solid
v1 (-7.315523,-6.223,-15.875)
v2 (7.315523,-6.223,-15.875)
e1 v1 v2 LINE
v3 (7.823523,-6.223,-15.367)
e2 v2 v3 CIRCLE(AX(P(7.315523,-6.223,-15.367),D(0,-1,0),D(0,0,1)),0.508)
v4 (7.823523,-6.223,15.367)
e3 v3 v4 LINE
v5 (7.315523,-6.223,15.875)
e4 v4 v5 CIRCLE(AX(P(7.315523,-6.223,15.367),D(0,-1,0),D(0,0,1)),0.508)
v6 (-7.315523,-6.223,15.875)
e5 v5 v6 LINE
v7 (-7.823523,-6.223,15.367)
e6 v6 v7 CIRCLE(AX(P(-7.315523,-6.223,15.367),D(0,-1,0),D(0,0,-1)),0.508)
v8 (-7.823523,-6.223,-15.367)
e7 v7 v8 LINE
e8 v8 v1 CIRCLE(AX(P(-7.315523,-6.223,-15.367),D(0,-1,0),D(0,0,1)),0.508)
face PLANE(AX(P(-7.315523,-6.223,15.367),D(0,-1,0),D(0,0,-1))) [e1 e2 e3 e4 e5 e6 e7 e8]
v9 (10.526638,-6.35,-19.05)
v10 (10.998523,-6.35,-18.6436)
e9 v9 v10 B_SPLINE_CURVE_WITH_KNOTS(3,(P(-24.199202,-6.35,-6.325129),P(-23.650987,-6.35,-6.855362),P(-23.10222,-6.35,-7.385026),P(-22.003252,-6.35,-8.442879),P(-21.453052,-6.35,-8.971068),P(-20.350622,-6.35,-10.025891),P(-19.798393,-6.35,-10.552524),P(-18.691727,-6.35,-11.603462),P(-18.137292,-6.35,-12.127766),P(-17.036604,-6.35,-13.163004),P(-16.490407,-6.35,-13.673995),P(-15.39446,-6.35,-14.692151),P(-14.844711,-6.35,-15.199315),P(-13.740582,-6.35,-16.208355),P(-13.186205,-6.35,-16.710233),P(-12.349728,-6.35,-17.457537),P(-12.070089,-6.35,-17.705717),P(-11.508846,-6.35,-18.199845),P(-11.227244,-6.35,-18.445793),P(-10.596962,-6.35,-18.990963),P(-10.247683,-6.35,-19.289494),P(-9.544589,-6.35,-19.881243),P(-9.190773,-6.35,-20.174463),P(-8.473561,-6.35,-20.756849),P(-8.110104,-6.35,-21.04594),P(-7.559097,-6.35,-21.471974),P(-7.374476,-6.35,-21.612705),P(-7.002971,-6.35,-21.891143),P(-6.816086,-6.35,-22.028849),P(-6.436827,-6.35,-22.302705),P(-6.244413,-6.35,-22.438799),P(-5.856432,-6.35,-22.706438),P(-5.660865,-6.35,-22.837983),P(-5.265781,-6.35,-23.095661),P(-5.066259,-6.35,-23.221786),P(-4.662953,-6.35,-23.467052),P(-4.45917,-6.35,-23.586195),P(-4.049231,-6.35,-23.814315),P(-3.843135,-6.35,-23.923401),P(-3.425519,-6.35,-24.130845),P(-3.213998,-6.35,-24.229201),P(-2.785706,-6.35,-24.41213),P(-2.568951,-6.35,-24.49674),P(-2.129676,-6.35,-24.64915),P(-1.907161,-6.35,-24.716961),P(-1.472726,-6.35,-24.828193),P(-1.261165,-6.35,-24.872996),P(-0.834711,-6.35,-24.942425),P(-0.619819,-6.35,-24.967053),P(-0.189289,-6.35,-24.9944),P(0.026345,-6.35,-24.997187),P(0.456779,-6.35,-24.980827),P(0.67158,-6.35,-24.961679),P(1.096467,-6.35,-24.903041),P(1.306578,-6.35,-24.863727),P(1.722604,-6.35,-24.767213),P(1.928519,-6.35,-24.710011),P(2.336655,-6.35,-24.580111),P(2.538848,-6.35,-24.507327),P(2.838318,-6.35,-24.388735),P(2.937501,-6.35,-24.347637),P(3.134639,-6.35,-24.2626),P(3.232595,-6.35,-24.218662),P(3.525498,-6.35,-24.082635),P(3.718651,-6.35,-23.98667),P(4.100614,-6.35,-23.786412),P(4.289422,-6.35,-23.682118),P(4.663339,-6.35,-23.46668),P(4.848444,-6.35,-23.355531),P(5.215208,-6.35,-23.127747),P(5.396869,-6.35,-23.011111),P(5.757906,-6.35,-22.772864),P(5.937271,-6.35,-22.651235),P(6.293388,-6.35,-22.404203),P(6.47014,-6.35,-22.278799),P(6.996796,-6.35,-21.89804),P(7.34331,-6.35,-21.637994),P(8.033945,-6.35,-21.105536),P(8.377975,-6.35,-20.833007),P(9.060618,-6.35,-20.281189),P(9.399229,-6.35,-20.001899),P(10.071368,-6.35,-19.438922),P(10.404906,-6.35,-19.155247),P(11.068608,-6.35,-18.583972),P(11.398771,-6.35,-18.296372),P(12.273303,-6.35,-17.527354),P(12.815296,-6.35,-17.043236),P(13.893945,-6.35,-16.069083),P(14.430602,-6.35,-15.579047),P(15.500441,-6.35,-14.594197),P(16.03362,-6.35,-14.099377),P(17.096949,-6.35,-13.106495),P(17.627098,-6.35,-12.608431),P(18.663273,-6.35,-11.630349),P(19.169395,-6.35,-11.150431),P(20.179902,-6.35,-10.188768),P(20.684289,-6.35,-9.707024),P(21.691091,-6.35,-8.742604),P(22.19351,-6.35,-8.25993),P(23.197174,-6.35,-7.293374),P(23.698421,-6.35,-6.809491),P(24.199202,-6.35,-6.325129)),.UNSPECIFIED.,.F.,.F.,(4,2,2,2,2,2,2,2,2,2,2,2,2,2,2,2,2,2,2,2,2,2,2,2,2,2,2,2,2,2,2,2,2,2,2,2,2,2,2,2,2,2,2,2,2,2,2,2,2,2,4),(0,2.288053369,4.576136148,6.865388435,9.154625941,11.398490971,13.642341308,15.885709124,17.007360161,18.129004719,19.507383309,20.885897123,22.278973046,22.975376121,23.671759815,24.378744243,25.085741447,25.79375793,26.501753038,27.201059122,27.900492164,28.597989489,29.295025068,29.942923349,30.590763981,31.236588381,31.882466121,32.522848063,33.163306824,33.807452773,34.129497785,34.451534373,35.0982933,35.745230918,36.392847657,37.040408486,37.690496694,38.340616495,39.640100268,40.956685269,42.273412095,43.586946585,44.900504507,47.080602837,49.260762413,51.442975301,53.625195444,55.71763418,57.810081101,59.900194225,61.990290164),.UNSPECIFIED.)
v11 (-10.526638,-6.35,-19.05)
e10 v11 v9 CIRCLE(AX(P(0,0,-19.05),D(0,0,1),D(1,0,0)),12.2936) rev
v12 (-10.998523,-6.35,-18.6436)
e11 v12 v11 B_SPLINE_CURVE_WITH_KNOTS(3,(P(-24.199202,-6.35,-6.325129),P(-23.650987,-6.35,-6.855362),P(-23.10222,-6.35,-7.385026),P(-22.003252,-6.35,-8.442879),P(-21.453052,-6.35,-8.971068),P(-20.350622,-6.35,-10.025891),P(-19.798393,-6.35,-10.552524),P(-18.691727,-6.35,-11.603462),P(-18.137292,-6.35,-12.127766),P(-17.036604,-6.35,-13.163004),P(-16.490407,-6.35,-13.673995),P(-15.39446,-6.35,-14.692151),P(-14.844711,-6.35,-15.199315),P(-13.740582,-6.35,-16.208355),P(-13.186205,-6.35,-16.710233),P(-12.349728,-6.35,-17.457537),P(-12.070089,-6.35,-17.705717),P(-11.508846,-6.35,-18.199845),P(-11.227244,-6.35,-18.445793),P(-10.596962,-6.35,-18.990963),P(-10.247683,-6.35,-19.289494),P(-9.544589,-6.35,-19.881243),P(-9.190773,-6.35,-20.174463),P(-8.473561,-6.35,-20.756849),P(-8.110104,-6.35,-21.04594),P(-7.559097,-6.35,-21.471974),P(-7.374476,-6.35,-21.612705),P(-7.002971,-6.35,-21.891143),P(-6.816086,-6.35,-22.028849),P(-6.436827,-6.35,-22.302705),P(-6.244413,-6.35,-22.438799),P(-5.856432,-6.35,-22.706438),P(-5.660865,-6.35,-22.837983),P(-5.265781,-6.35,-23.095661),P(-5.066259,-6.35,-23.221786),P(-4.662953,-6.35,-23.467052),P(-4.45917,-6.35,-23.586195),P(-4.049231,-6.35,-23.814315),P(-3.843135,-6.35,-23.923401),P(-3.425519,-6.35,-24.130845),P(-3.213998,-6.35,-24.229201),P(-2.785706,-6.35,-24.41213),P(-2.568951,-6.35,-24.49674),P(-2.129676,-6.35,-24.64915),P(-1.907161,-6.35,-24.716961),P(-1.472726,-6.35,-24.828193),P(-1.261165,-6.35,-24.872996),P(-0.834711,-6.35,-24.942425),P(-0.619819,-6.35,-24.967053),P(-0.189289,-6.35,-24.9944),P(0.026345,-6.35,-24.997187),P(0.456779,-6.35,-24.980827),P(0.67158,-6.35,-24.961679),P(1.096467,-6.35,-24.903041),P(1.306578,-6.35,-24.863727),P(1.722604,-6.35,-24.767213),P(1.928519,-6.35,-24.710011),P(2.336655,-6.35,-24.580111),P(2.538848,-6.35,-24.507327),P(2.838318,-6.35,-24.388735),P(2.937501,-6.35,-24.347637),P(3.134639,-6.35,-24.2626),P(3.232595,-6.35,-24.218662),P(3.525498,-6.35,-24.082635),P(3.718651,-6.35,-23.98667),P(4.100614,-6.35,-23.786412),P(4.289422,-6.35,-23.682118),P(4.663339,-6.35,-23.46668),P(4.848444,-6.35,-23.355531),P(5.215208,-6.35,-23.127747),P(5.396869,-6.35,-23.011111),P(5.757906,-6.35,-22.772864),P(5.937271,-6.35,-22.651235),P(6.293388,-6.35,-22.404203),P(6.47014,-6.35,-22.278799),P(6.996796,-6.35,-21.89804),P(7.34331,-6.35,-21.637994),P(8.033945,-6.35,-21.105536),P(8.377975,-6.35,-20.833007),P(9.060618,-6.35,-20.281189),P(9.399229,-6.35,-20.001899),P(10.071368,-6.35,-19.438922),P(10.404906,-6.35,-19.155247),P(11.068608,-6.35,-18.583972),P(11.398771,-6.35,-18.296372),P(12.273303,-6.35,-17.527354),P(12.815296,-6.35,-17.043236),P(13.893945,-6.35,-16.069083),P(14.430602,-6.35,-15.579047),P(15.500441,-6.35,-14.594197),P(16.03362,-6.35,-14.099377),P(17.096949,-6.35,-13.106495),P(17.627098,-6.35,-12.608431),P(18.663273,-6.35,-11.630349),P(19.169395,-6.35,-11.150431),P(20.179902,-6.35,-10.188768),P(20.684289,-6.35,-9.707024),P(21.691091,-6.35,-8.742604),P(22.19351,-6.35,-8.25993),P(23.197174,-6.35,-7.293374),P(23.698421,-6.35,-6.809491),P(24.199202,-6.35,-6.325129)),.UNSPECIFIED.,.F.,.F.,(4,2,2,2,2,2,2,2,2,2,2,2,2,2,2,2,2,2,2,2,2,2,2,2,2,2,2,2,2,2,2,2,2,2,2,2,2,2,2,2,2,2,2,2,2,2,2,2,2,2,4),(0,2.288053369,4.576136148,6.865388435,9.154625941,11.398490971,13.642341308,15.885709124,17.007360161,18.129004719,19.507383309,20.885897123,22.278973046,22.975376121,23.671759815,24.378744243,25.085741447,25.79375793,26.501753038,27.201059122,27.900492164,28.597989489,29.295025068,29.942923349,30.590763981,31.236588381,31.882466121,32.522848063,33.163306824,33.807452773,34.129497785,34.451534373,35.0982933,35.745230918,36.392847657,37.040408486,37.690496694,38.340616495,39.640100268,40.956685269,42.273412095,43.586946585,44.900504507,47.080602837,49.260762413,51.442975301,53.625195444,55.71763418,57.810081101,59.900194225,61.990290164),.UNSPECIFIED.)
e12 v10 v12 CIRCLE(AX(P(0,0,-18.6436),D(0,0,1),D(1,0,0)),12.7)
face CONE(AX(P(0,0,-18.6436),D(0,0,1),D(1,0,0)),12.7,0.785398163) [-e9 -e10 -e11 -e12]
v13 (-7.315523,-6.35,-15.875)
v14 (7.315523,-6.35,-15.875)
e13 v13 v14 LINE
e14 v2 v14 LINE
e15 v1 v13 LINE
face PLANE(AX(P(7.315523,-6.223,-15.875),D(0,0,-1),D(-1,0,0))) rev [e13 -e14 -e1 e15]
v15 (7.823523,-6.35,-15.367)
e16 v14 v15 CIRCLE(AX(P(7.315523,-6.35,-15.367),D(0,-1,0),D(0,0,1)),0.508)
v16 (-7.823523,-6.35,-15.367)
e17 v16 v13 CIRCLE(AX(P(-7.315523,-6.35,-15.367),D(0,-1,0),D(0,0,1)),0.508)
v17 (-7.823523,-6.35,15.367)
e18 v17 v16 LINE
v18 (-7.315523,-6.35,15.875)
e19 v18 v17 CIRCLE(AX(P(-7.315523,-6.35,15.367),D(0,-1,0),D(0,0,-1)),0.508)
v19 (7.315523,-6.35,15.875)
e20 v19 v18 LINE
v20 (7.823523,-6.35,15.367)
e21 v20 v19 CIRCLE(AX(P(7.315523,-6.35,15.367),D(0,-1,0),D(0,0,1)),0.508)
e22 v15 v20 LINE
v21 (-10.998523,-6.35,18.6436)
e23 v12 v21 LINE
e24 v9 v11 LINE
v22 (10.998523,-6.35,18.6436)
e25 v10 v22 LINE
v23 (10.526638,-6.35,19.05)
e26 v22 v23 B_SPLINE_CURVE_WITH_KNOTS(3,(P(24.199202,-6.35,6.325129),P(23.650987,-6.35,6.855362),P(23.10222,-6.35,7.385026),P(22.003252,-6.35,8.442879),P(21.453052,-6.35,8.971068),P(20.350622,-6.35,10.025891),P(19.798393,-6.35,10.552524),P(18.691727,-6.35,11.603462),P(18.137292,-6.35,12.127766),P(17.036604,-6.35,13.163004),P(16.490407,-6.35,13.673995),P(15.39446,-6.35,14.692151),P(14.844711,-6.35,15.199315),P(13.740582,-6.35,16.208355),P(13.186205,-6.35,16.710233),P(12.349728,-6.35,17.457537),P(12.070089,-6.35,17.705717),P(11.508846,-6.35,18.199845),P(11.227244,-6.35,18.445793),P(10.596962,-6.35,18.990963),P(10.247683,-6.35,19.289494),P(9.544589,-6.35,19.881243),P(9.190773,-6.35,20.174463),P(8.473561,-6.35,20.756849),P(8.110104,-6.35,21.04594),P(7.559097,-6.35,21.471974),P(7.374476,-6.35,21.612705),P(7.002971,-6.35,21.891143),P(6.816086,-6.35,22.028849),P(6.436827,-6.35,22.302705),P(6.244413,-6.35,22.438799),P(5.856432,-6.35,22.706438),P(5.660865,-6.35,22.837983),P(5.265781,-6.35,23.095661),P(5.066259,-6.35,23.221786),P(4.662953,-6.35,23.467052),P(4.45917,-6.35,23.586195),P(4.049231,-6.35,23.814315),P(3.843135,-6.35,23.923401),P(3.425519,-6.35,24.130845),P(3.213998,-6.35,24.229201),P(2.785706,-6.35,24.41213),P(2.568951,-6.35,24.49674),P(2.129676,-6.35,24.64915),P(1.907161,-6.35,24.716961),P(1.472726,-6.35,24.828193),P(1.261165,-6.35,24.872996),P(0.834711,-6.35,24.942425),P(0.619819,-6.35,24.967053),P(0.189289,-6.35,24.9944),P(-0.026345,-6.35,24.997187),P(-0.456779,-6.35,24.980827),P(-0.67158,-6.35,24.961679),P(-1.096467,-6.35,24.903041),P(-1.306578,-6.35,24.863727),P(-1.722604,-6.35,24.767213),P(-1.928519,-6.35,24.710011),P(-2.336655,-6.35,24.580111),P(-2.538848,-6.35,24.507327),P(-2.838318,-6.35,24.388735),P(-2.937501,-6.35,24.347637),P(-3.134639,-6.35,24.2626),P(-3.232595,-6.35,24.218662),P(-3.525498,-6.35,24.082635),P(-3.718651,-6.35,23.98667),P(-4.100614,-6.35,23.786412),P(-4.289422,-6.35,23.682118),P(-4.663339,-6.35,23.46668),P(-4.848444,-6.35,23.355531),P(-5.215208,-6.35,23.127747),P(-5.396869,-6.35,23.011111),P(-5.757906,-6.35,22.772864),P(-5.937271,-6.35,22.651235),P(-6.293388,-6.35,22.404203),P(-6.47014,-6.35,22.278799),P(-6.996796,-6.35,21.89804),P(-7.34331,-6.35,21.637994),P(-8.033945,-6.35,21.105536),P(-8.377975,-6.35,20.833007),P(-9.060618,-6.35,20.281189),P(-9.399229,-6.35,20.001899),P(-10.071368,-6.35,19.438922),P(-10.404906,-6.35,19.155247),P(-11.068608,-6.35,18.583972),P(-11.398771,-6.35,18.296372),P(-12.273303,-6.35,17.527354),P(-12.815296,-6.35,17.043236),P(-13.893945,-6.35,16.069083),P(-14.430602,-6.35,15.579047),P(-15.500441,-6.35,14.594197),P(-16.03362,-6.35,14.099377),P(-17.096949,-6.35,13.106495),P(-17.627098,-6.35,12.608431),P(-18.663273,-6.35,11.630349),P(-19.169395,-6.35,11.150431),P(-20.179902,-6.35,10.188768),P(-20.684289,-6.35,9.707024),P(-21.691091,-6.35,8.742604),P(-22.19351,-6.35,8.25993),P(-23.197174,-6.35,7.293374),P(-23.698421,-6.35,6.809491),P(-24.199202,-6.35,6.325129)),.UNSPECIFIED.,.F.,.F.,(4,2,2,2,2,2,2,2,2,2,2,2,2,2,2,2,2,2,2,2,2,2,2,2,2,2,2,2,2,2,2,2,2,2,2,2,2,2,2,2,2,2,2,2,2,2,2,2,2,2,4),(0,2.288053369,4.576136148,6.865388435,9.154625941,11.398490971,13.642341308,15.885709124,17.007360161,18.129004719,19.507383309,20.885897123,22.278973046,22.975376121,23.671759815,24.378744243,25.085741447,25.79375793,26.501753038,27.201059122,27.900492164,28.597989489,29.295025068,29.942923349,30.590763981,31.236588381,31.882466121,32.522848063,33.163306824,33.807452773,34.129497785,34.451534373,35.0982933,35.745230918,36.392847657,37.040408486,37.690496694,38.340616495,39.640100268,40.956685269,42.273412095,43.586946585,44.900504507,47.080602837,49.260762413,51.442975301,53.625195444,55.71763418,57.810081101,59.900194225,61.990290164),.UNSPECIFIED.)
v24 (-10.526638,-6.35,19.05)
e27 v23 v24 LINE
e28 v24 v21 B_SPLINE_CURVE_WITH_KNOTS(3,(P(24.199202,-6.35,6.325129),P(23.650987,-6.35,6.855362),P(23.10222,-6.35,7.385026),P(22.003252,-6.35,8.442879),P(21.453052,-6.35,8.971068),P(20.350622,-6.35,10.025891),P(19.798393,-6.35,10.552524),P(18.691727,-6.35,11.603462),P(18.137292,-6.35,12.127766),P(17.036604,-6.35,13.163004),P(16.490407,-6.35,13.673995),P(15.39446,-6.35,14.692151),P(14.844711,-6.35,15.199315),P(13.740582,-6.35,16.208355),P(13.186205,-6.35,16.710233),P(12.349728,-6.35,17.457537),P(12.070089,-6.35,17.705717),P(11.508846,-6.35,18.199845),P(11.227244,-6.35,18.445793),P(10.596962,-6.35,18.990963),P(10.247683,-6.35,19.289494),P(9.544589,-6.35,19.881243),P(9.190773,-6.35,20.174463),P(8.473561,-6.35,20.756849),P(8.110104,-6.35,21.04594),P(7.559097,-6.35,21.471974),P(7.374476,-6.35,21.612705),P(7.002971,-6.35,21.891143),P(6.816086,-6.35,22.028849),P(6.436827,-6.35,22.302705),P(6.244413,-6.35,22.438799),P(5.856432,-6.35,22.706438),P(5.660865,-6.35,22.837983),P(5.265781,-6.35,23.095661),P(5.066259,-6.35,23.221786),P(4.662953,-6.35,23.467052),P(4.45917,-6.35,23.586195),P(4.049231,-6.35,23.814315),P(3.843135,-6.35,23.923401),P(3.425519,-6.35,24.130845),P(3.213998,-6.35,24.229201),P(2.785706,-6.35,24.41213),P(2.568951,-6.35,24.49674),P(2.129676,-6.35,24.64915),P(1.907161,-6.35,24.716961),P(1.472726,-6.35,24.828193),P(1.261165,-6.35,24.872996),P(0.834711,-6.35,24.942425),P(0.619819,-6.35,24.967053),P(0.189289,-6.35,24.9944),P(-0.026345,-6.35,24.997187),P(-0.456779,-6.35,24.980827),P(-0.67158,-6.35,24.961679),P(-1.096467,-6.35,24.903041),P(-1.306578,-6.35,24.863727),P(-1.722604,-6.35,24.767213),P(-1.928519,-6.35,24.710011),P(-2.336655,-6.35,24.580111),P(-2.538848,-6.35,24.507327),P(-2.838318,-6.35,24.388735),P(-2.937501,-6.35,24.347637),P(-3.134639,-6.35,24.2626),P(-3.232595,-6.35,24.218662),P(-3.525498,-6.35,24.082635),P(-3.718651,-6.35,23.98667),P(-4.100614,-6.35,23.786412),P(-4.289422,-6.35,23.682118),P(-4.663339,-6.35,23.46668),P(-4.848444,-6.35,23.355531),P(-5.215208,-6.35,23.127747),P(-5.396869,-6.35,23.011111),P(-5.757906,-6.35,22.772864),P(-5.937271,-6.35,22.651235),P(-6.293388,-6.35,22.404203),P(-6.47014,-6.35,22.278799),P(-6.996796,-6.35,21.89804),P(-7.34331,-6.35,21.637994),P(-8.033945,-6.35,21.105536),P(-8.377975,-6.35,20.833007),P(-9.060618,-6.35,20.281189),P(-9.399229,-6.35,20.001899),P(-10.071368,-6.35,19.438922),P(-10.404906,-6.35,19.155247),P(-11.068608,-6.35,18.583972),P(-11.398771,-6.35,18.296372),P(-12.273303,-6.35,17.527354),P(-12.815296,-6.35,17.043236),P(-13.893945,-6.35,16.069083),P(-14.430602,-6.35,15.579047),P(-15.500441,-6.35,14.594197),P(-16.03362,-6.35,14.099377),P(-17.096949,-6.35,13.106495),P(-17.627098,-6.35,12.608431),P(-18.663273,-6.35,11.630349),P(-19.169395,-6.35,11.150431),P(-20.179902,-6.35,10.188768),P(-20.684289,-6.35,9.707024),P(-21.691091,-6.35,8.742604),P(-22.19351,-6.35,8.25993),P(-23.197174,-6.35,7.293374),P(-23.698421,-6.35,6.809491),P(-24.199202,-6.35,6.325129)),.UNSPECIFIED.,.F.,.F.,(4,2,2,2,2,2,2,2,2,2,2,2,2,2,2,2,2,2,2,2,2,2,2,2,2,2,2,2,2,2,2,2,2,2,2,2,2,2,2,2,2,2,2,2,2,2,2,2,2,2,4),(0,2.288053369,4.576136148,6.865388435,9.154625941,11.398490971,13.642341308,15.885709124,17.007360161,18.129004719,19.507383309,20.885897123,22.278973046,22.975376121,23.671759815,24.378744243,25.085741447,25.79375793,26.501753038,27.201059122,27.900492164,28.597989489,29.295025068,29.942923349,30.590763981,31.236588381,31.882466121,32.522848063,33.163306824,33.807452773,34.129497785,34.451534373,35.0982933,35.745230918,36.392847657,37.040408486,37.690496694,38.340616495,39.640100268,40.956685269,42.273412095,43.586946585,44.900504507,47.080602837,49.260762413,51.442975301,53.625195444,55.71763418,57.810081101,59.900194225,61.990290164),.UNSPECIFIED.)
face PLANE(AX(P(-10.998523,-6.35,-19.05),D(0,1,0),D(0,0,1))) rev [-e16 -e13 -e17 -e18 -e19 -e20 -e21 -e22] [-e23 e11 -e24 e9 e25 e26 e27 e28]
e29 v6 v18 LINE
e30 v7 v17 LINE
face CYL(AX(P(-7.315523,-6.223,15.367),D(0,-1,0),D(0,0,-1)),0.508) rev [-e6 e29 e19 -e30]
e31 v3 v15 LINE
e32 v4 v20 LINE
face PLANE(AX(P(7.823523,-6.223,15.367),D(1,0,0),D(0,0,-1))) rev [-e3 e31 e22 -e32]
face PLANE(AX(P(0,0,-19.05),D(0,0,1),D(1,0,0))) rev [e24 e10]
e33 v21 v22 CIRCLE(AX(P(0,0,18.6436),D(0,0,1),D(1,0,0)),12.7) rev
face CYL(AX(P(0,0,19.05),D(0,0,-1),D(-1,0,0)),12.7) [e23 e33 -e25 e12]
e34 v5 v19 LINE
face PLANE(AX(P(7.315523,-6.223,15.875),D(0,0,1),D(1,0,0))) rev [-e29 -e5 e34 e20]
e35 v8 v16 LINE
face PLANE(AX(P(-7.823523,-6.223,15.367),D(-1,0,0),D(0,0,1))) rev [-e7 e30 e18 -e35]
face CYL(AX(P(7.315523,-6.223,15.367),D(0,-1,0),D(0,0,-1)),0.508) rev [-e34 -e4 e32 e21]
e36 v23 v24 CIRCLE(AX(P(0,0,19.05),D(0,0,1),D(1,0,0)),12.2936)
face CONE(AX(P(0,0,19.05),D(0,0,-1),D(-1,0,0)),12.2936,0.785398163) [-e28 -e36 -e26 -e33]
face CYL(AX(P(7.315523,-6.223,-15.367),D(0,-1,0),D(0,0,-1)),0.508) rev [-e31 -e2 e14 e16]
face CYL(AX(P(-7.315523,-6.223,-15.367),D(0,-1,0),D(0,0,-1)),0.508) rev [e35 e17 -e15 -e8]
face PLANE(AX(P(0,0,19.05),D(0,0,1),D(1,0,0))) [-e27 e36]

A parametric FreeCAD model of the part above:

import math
import FreeCAD as App
import Part
import Sketcher
Q = App.Units.Quantity


def edges_at(feature, points):
    """Names of the edges that pass closest to the given points."""
    edges = feature.Shape.Edges
    near = lambda p: min(range(len(edges)), key=lambda i: edges[i].distToShape(Part.Vertex(*p))[0])
    return sorted({f"Edge{near(p) + 1}" for p in points})

doc = App.newDocument("Part")
params = doc.addObject("Spreadsheet::Sheet", "Params")
for row, (alias, value) in enumerate([
    ("sketch1_diameter", "1 in"),
    ("pad1_length", "1.5 in"),
    ("chamfer_size", "0.016 in"),
    ("sketch2_radius", "0.5 in"),
    ("sketch3_radius", "0.02 in"),
    ("sketch3_height", "1.21 in"),
    ("pocket2_length", "0.005 in"),
], start=1):
    params.set(f"A{row}", alias)
    params.set(f"B{row}", "=" + value)
    params.setAlias(f"B{row}", alias)

body = doc.addObject("PartDesign::Body", "Body")

# Sketch on XY plane
sketch1 = body.newObject("Sketcher::SketchObject", "Sketch")
sketch1.AttachmentSupport = (doc.getObject("XY_Plane"), [""])
sketch1.MapMode = "FlatFace"
sketch1.addGeometry(Part.Circle(App.Vector(0, 0, 0), App.Vector(0, 0, 1), 13), False)
sketch1.addConstraint([
    Sketcher.Constraint("Coincident", 0, 3, -1, 1),
    Sketcher.Constraint("Diameter", 0, Q("1 in")),
])
sketch1.setExpression("Constraints[1]", "Params.sketch1_diameter")
pad1 = body.newObject("PartDesign::Pad", "Pad")
pad1.Profile = sketch1
pad1.setExpression("Length", "Params.pad1_length")
pad1.Midplane = True
doc.recompute()

chamfer = body.newObject("PartDesign::Chamfer", "Chamfer")
chamfer.Base = (pad1, edges_at(pad1, [(-12.7, 0, -19.05), (-12.7, 0, 19.05)]))
chamfer.setExpression("Size", "Params.chamfer_size")

# Sketch on XY plane
sketch2 = body.newObject("Sketcher::SketchObject", "Sketch001")
sketch2.AttachmentSupport = (doc.getObject("XY_Plane"), [""])
sketch2.MapMode = "FlatFace"
sketch2.addGeometry([
    Part.LineSegment(App.Vector(11, -6, 0), App.Vector(-11, -6, 0)),
    Part.ArcOfCircle(Part.Circle(App.Vector(0, 0, 0), App.Vector(0, 0, 1), 13), math.radians(-150), math.radians(-30)),
], False)
sketch2.addConstraint([
    Sketcher.Constraint("Coincident", 0, 1, 1, 2),
    Sketcher.Constraint("Coincident", 1, 1, 0, 2),
    Sketcher.Constraint("Horizontal", 0),
    Sketcher.Constraint("Coincident", 1, 3, -1, 1),
    Sketcher.Constraint("Radius", 1, Q("0.5 in")),
    Sketcher.Constraint("DistanceY", 0, 1, -1, 1, Q("0.25 in")),
])
sketch2.setExpression("Constraints[4]", "Params.sketch2_radius")
pocket1 = body.newObject("PartDesign::Pocket", "Pocket")
pocket1.Profile = sketch2
pocket1.Type = "ThroughAll"
pocket1.Midplane = True

# Sketch on XZ plane
sketch3 = body.newObject("Sketcher::SketchObject", "Sketch002")
sketch3.AttachmentSupport = (doc.getObject("XZ_Plane"), [""])
sketch3.MapMode = "FlatFace"
sketch3.AttachmentOffset = App.Placement(App.Vector(0, 0, 0.25 * 25.4), App.Rotation())
sketch3.addGeometry([
    Part.LineSegment(App.Vector(7.3, 15.9, 0), App.Vector(-7.3, 15.9, 0)),  # 0
    Part.ArcOfCircle(Part.Circle(App.Vector(-7.3, 15.4, 0), App.Vector(0, 0, 1), 0.5), math.radians(90), math.radians(180)),  # 1
    Part.LineSegment(App.Vector(-7.8, 15.4, 0), App.Vector(-7.8, -15.4, 0)),  # 2
    Part.ArcOfCircle(Part.Circle(App.Vector(-7.3, -15.4, 0), App.Vector(0, 0, 1), 0.5), math.radians(180), math.radians(270)),  # 3
    Part.LineSegment(App.Vector(-7.3, -15.9, 0), App.Vector(7.3, -15.9, 0)),  # 4
    Part.ArcOfCircle(Part.Circle(App.Vector(7.3, -15.4, 0), App.Vector(0, 0, 1), 0.5), math.radians(-90), math.radians(0)),  # 5
    Part.LineSegment(App.Vector(7.8, -15.4, 0), App.Vector(7.8, 15.4, 0)),  # 6
    Part.ArcOfCircle(Part.Circle(App.Vector(7.3, 15.4, 0), App.Vector(0, 0, 1), 0.5), math.radians(0), math.radians(90)),  # 7
], False)
sketch3.addConstraint([
    Sketcher.Constraint("Tangent", 0, 2, 1, 1),
    Sketcher.Constraint("Tangent", 1, 2, 2, 1),
    Sketcher.Constraint("Tangent", 2, 2, 3, 1),
    Sketcher.Constraint("Tangent", 3, 2, 4, 1),
    Sketcher.Constraint("Tangent", 4, 2, 5, 1),
    Sketcher.Constraint("Tangent", 5, 2, 6, 1),
    Sketcher.Constraint("Tangent", 6, 2, 7, 1),
    Sketcher.Constraint("Tangent", 7, 2, 0, 1),
    Sketcher.Constraint("Horizontal", 0),
    Sketcher.Constraint("Vertical", 2),
    Sketcher.Constraint("Horizontal", 4),
    Sketcher.Constraint("Vertical", 6),
    Sketcher.Constraint("Equal", 1, 3),
    Sketcher.Constraint("Equal", 3, 5),
    Sketcher.Constraint("Equal", 5, 7),
    Sketcher.Constraint("Symmetric", 1, 3, 5, 3, -1, 1),
    Sketcher.Constraint("Radius", 1, Q("0.02 in")),
    Sketcher.Constraint("DistanceY", 2, 2, 2, 1, Q("1.21 in")),
    Sketcher.Constraint("DistanceX", 0, 2, 0, 1, 14.631045),
])
sketch3.setExpression("Constraints[16]", "Params.sketch3_radius")
sketch3.setExpression("Constraints[17]", "Params.sketch3_height")
pocket2 = body.newObject("PartDesign::Pocket", "Pocket001")
pocket2.Profile = sketch3
pocket2.setExpression("Length", "Params.pocket2_length")

doc.recompute()
